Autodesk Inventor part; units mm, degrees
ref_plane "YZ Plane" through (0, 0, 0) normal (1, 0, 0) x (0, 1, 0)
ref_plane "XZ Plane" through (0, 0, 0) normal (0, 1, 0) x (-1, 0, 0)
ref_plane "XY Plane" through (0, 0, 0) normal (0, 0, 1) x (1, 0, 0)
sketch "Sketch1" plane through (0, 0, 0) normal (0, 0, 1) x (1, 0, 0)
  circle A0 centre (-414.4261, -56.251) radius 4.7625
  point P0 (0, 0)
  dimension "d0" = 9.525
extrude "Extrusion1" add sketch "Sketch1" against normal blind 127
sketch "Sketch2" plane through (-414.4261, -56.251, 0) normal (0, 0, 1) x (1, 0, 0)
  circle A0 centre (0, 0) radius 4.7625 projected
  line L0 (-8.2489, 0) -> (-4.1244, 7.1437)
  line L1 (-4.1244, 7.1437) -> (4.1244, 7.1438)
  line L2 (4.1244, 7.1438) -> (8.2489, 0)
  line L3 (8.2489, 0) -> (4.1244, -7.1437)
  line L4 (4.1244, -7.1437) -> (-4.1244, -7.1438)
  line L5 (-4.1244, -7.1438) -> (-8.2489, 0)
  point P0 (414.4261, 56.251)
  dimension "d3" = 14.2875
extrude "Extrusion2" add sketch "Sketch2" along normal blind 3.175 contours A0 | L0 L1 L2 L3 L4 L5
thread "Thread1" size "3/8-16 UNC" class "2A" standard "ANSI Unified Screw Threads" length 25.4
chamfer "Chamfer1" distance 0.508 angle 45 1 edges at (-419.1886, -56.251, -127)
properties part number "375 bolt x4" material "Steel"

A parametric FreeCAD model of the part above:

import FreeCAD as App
import Part
import Sketcher
from FreeCAD import Vector
Q = App.Units.Quantity


def edges_at(feature, points):
    """Names of the edges that pass closest to the given points."""
    edges = feature.Shape.Edges
    near = lambda p: min(range(len(edges)), key=lambda i: edges[i].distToShape(Part.Vertex(*p))[0])
    return sorted({f"Edge{near(p) + 1}" for p in points})

doc = App.newDocument("Part")
body = doc.addObject("PartDesign::Body", "Body")

# Sketch on XY plane
sketch1 = body.newObject("Sketcher::SketchObject", "Sketch")
sketch1.AttachmentSupport = (doc.getObject("XY_Plane"), [""])
sketch1.MapMode = "FlatFace"
sketch1.addGeometry(Part.Circle(Vector(-414.4, -56.3, 0), Vector(0, 0, 1), 4.8), False)
sketch1.addConstraint([
    Sketcher.Constraint("Diameter", 0, Q("0.375 in")),
    Sketcher.Constraint("DistanceX", 0, 3, -1, 1, Q("16.316 in")),
    Sketcher.Constraint("DistanceY", 0, 3, -1, 1, Q("2.2146 in")),
])
pad1 = body.newObject("PartDesign::Pad", "Pad")
pad1.Profile = sketch1
pad1.Length = Q("5 in")
pad1.Reversed = True

# Sketch on XY plane
sketch2 = body.newObject("Sketcher::SketchObject", "Sketch001")
sketch2.AttachmentSupport = (doc.getObject("XY_Plane"), [""])
sketch2.MapMode = "FlatFace"
sketch2.addGeometry([
    Part.LineSegment(Vector(-419, -49, 0), Vector(-423, -56, 0)),  # 0
    Part.LineSegment(Vector(-423, -56, 0), Vector(-419, -63, 0)),  # 1
    Part.LineSegment(Vector(-419, -63, 0), Vector(-410, -63, 0)),  # 2
    Part.LineSegment(Vector(-410, -63, 0), Vector(-406, -56, 0)),  # 3
    Part.LineSegment(Vector(-406, -56, 0), Vector(-410, -49, 0)),  # 4
    Part.LineSegment(Vector(-410, -49, 0), Vector(-419, -49, 0)),  # 5
], False)
sketch2.addConstraint([
    Sketcher.Constraint("Coincident", 0, 2, 1, 1),
    Sketcher.Constraint("Coincident", 1, 2, 2, 1),
    Sketcher.Constraint("Coincident", 2, 2, 3, 1),
    Sketcher.Constraint("Coincident", 3, 2, 4, 1),
    Sketcher.Constraint("Coincident", 4, 2, 5, 1),
    Sketcher.Constraint("Coincident", 5, 2, 0, 1),
    Sketcher.Constraint("Horizontal", 2),
    Sketcher.Constraint("Horizontal", 5),
    Sketcher.Constraint("Parallel", 0, 3),
    Sketcher.Constraint("Parallel", 1, 4),
    Sketcher.Constraint("Horizontal", 0, 2, 3, 2),
    Sketcher.Constraint("Vertical", 2, 2, 4, 2),
    Sketcher.Constraint("Vertical", 1, 2, 5, 2),
    Sketcher.Constraint("Angle", 0, Q("-120.0005 deg")),
    Sketcher.Constraint("DistanceY", 2, 2, 4, 2, Q("0.5625 in")),
    Sketcher.Constraint("DistanceX", 2, 1, 2, 2, 8.2488),
    Sketcher.Constraint("DistanceY", 0, 2, -1, 1, Q("2.2146 in")),
    Sketcher.Constraint("DistanceX", 2, 2, -1, 1, Q("16.1536 in")),
])
pad2 = body.newObject("PartDesign::Pad", "Pad001")
pad2.Profile = sketch2
pad2.Length = Q("0.125 in")
doc.recompute()

chamfer = body.newObject("PartDesign::Chamfer", "Chamfer")
chamfer.Base = (pad2, edges_at(pad2, [(-419.189, -56.251, -127)]))
chamfer.Size = Q("0.02 in")

doc.recompute()
